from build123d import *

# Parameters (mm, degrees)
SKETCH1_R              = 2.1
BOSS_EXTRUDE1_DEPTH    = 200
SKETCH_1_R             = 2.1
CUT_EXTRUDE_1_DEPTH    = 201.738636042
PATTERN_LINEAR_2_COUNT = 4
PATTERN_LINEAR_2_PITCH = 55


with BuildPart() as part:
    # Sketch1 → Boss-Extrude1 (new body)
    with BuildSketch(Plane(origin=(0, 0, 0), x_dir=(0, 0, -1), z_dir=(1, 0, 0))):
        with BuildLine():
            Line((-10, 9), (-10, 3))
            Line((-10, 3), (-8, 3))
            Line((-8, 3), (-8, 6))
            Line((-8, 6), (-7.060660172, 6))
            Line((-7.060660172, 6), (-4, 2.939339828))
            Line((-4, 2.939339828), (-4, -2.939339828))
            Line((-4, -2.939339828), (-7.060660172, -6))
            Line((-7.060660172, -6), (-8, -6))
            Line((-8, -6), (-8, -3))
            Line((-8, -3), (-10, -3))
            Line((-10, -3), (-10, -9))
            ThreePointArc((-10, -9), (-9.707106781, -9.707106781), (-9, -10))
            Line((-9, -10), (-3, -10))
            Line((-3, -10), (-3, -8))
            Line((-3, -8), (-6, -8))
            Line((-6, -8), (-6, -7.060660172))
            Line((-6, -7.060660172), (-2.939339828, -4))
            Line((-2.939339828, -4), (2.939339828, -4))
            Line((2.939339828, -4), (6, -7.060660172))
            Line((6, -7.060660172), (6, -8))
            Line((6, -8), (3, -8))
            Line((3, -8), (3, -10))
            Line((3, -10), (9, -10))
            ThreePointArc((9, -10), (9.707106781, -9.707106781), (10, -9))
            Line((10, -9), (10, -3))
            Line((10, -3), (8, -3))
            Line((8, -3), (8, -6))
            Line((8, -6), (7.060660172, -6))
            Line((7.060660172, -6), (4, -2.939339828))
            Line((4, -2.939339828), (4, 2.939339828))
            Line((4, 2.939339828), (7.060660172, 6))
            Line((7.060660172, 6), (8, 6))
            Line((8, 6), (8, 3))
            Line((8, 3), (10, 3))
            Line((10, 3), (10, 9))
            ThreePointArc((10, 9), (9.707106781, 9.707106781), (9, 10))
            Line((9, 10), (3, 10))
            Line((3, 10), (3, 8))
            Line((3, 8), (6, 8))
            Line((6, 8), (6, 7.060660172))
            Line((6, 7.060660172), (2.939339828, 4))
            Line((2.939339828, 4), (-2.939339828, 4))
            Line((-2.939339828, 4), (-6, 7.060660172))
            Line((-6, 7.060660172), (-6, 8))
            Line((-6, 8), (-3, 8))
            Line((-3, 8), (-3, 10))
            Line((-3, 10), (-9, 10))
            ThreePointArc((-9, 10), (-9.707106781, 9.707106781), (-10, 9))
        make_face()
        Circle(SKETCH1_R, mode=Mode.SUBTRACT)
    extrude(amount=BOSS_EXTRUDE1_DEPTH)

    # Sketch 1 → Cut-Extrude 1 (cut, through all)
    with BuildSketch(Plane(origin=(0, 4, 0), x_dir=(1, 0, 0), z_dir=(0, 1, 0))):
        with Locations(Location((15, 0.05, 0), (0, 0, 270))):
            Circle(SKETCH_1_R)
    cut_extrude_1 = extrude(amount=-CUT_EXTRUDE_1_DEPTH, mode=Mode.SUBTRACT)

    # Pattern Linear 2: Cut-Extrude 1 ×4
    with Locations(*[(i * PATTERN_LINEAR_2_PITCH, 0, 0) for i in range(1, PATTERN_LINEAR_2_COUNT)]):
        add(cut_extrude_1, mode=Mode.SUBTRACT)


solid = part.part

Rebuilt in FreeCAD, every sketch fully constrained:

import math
import FreeCAD as App
import Part
import Sketcher

V = App.Vector
Q = App.Units.Quantity

doc = App.newDocument("Part")
body = doc.addObject("PartDesign::Body", "Body")

sketch1 = doc.addObject("Sketcher::SketchObject", "Sketch")
body.addObject(sketch1)
sketch1.AttachmentSupport = (doc.YZ_Plane, [""])
sketch1.MapMode = "FlatFace"
sketch1.addGeometry(Part.LineSegment(V(9, 10, 0), V(3, 10, 0)), False)
sketch1.addGeometry(Part.LineSegment(V(3, 10, 0), V(3, 8, 0)), False)
sketch1.addGeometry(Part.LineSegment(V(3, 8, 0), V(6, 8, 0)), False)
sketch1.addGeometry(Part.LineSegment(V(6, 8, 0), V(6, 7.1, 0)), False)
sketch1.addGeometry(Part.LineSegment(V(6, 7.1, 0), V(2.9, 4, 0)), False)
sketch1.addGeometry(Part.LineSegment(V(2.9, 4, 0), V(-2.9, 4, 0)), False)
sketch1.addGeometry(Part.LineSegment(V(-2.9, 4, 0), V(-6, 7.1, 0)), False)
sketch1.addGeometry(Part.LineSegment(V(-6, 7.1, 0), V(-6, 8, 0)), False)
sketch1.addGeometry(Part.LineSegment(V(-6, 8, 0), V(-3, 8, 0)), False)
sketch1.addGeometry(Part.LineSegment(V(-3, 8, 0), V(-3, 10, 0)), False)
sketch1.addGeometry(Part.LineSegment(V(-3, 10, 0), V(-9, 10, 0)), False)
sketch1.addGeometry(Part.ArcOfCircle(Part.Circle(V(-9, 9, 0), V(0, 0, 1), 1), math.radians(90), math.radians(180)), False)
sketch1.addGeometry(Part.LineSegment(V(-10, 9, 0), V(-10, 3, 0)), False)
sketch1.addGeometry(Part.LineSegment(V(-10, 3, 0), V(-8, 3, 0)), False)
sketch1.addGeometry(Part.LineSegment(V(-8, 3, 0), V(-8, 6, 0)), False)
sketch1.addGeometry(Part.LineSegment(V(-8, 6, 0), V(-7.1, 6, 0)), False)
sketch1.addGeometry(Part.LineSegment(V(-7.1, 6, 0), V(-4, 2.9, 0)), False)
sketch1.addGeometry(Part.LineSegment(V(-4, 2.9, 0), V(-4, -2.9, 0)), False)
sketch1.addGeometry(Part.LineSegment(V(-4, -2.9, 0), V(-7.1, -6, 0)), False)
sketch1.addGeometry(Part.LineSegment(V(-7.1, -6, 0), V(-8, -6, 0)), False)
sketch1.addGeometry(Part.LineSegment(V(-8, -6, 0), V(-8, -3, 0)), False)
sketch1.addGeometry(Part.LineSegment(V(-8, -3, 0), V(-10, -3, 0)), False)
sketch1.addGeometry(Part.LineSegment(V(-10, -3, 0), V(-10, -9, 0)), False)
sketch1.addGeometry(Part.ArcOfCircle(Part.Circle(V(-9, -9, 0), V(0, 0, 1), 1), math.radians(-180), math.radians(-90)), False)
sketch1.addGeometry(Part.LineSegment(V(-9, -10, 0), V(-3, -10, 0)), False)
sketch1.addGeometry(Part.LineSegment(V(-3, -10, 0), V(-3, -8, 0)), False)
sketch1.addGeometry(Part.LineSegment(V(-3, -8, 0), V(-6, -8, 0)), False)
sketch1.addGeometry(Part.LineSegment(V(-6, -8, 0), V(-6, -7.1, 0)), False)
sketch1.addGeometry(Part.LineSegment(V(-6, -7.1, 0), V(-2.9, -4, 0)), False)
sketch1.addGeometry(Part.LineSegment(V(-2.9, -4, 0), V(2.9, -4, 0)), False)
sketch1.addGeometry(Part.LineSegment(V(2.9, -4, 0), V(6, -7.1, 0)), False)
sketch1.addGeometry(Part.LineSegment(V(6, -7.1, 0), V(6, -8, 0)), False)
sketch1.addGeometry(Part.LineSegment(V(6, -8, 0), V(3, -8, 0)), False)
sketch1.addGeometry(Part.LineSegment(V(3, -8, 0), V(3, -10, 0)), False)
sketch1.addGeometry(Part.LineSegment(V(3, -10, 0), V(9, -10, 0)), False)
sketch1.addGeometry(Part.ArcOfCircle(Part.Circle(V(9, -9, 0), V(0, 0, 1), 1), math.radians(-90), math.radians(0)), False)
sketch1.addGeometry(Part.LineSegment(V(10, -9, 0), V(10, -3, 0)), False)
sketch1.addGeometry(Part.LineSegment(V(10, -3, 0), V(8, -3, 0)), False)
sketch1.addGeometry(Part.LineSegment(V(8, -3, 0), V(8, -6, 0)), False)
sketch1.addGeometry(Part.LineSegment(V(8, -6, 0), V(7.1, -6, 0)), False)
sketch1.addGeometry(Part.LineSegment(V(7.1, -6, 0), V(4, -2.9, 0)), False)
sketch1.addGeometry(Part.LineSegment(V(4, -2.9, 0), V(4, 2.9, 0)), False)
sketch1.addGeometry(Part.LineSegment(V(4, 2.9, 0), V(7.1, 6, 0)), False)
sketch1.addGeometry(Part.LineSegment(V(7.1, 6, 0), V(8, 6, 0)), False)
sketch1.addGeometry(Part.LineSegment(V(8, 6, 0), V(8, 3, 0)), False)
sketch1.addGeometry(Part.LineSegment(V(8, 3, 0), V(10, 3, 0)), False)
sketch1.addGeometry(Part.LineSegment(V(10, 3, 0), V(10, 9, 0)), False)
sketch1.addGeometry(Part.ArcOfCircle(Part.Circle(V(9, 9, 0), V(0, 0, 1), 1), math.radians(0), math.radians(90)), False)
sketch1.addGeometry(Part.Circle(V(0, 0, 0), V(0, 0, 1), 2.1), False)
sketch1.addConstraint(Sketcher.Constraint("Coincident", 0, 2, 1, 1))
sketch1.addConstraint(Sketcher.Constraint("Coincident", 1, 2, 2, 1))
sketch1.addConstraint(Sketcher.Constraint("Coincident", 2, 2, 3, 1))
sketch1.addConstraint(Sketcher.Constraint("Coincident", 3, 2, 4, 1))
sketch1.addConstraint(Sketcher.Constraint("Coincident", 4, 2, 5, 1))
sketch1.addConstraint(Sketcher.Constraint("Coincident", 5, 2, 6, 1))
sketch1.addConstraint(Sketcher.Constraint("Coincident", 6, 2, 7, 1))
sketch1.addConstraint(Sketcher.Constraint("Coincident", 7, 2, 8, 1))
sketch1.addConstraint(Sketcher.Constraint("Coincident", 8, 2, 9, 1))
sketch1.addConstraint(Sketcher.Constraint("Coincident", 9, 2, 10, 1))
sketch1.addConstraint(Sketcher.Constraint("Tangent", 10, 2, 11, 1))
sketch1.addConstraint(Sketcher.Constraint("Tangent", 11, 2, 12, 1))
sketch1.addConstraint(Sketcher.Constraint("Coincident", 12, 2, 13, 1))
sketch1.addConstraint(Sketcher.Constraint("Coincident", 13, 2, 14, 1))
sketch1.addConstraint(Sketcher.Constraint("Coincident", 14, 2, 15, 1))
sketch1.addConstraint(Sketcher.Constraint("Coincident", 15, 2, 16, 1))
sketch1.addConstraint(Sketcher.Constraint("Coincident", 16, 2, 17, 1))
sketch1.addConstraint(Sketcher.Constraint("Coincident", 17, 2, 18, 1))
sketch1.addConstraint(Sketcher.Constraint("Coincident", 18, 2, 19, 1))
sketch1.addConstraint(Sketcher.Constraint("Coincident", 19, 2, 20, 1))
sketch1.addConstraint(Sketcher.Constraint("Coincident", 20, 2, 21, 1))
sketch1.addConstraint(Sketcher.Constraint("Coincident", 21, 2, 22, 1))
sketch1.addConstraint(Sketcher.Constraint("Tangent", 22, 2, 23, 1))
sketch1.addConstraint(Sketcher.Constraint("Tangent", 23, 2, 24, 1))
sketch1.addConstraint(Sketcher.Constraint("Coincident", 24, 2, 25, 1))
sketch1.addConstraint(Sketcher.Constraint("Coincident", 25, 2, 26, 1))
sketch1.addConstraint(Sketcher.Constraint("Coincident", 26, 2, 27, 1))
sketch1.addConstraint(Sketcher.Constraint("Coincident", 27, 2, 28, 1))
sketch1.addConstraint(Sketcher.Constraint("Coincident", 28, 2, 29, 1))
sketch1.addConstraint(Sketcher.Constraint("Coincident", 29, 2, 30, 1))
sketch1.addConstraint(Sketcher.Constraint("Coincident", 30, 2, 31, 1))
sketch1.addConstraint(Sketcher.Constraint("Coincident", 31, 2, 32, 1))
sketch1.addConstraint(Sketcher.Constraint("Coincident", 32, 2, 33, 1))
sketch1.addConstraint(Sketcher.Constraint("Coincident", 33, 2, 34, 1))
sketch1.addConstraint(Sketcher.Constraint("Tangent", 34, 2, 35, 1))
sketch1.addConstraint(Sketcher.Constraint("Tangent", 35, 2, 36, 1))
sketch1.addConstraint(Sketcher.Constraint("Coincident", 36, 2, 37, 1))
sketch1.addConstraint(Sketcher.Constraint("Coincident", 37, 2, 38, 1))
sketch1.addConstraint(Sketcher.Constraint("Coincident", 38, 2, 39, 1))
sketch1.addConstraint(Sketcher.Constraint("Coincident", 39, 2, 40, 1))
sketch1.addConstraint(Sketcher.Constraint("Coincident", 40, 2, 41, 1))
sketch1.addConstraint(Sketcher.Constraint("Coincident", 41, 2, 42, 1))
sketch1.addConstraint(Sketcher.Constraint("Coincident", 42, 2, 43, 1))
sketch1.addConstraint(Sketcher.Constraint("Coincident", 43, 2, 44, 1))
sketch1.addConstraint(Sketcher.Constraint("Coincident", 44, 2, 45, 1))
sketch1.addConstraint(Sketcher.Constraint("Coincident", 45, 2, 46, 1))
sketch1.addConstraint(Sketcher.Constraint("Tangent", 46, 2, 47, 1))
sketch1.addConstraint(Sketcher.Constraint("Tangent", 47, 2, 0, 1))
sketch1.addConstraint(Sketcher.Constraint("Horizontal", 0))
sketch1.addConstraint(Sketcher.Constraint("Vertical", 1))
sketch1.addConstraint(Sketcher.Constraint("Horizontal", 2))
sketch1.addConstraint(Sketcher.Constraint("Vertical", 3))
sketch1.addConstraint(Sketcher.Constraint("Horizontal", 5))
sketch1.addConstraint(Sketcher.Constraint("Vertical", 7))
sketch1.addConstraint(Sketcher.Constraint("Horizontal", 8))
sketch1.addConstraint(Sketcher.Constraint("Vertical", 9))
sketch1.addConstraint(Sketcher.Constraint("Horizontal", 10))
sketch1.addConstraint(Sketcher.Constraint("Vertical", 12))
sketch1.addConstraint(Sketcher.Constraint("Horizontal", 13))
sketch1.addConstraint(Sketcher.Constraint("Vertical", 14))
sketch1.addConstraint(Sketcher.Constraint("Horizontal", 15))
sketch1.addConstraint(Sketcher.Constraint("Vertical", 17))
sketch1.addConstraint(Sketcher.Constraint("Horizontal", 19))
sketch1.addConstraint(Sketcher.Constraint("Vertical", 20))
sketch1.addConstraint(Sketcher.Constraint("Horizontal", 21))
sketch1.addConstraint(Sketcher.Constraint("Vertical", 22))
sketch1.addConstraint(Sketcher.Constraint("Horizontal", 24))
sketch1.addConstraint(Sketcher.Constraint("Vertical", 25))
sketch1.addConstraint(Sketcher.Constraint("Horizontal", 26))
sketch1.addConstraint(Sketcher.Constraint("Vertical", 27))
sketch1.addConstraint(Sketcher.Constraint("Horizontal", 29))
sketch1.addConstraint(Sketcher.Constraint("Vertical", 31))
sketch1.addConstraint(Sketcher.Constraint("Horizontal", 32))
sketch1.addConstraint(Sketcher.Constraint("Vertical", 33))
sketch1.addConstraint(Sketcher.Constraint("Horizontal", 34))
sketch1.addConstraint(Sketcher.Constraint("Vertical", 36))
sketch1.addConstraint(Sketcher.Constraint("Horizontal", 37))
sketch1.addConstraint(Sketcher.Constraint("Vertical", 38))
sketch1.addConstraint(Sketcher.Constraint("Horizontal", 39))
sketch1.addConstraint(Sketcher.Constraint("Vertical", 41))
sketch1.addConstraint(Sketcher.Constraint("Horizontal", 43))
sketch1.addConstraint(Sketcher.Constraint("Vertical", 44))
sketch1.addConstraint(Sketcher.Constraint("Horizontal", 45))
sketch1.addConstraint(Sketcher.Constraint("Vertical", 46))
sketch1.addConstraint(Sketcher.Constraint("Coincident", 48, 3, -1, 1))
sketch1.addConstraint(Sketcher.Constraint("Equal", 11, 23))
sketch1.addConstraint(Sketcher.Constraint("Equal", 23, 35))
sketch1.addConstraint(Sketcher.Constraint("Equal", 35, 47))
sketch1.addConstraint(Sketcher.Constraint("Symmetric", 11, 3, 35, 3, -1, 1))
sketch1.addConstraint(Sketcher.Constraint("Symmetric", 23, 3, 47, 3, -1, 1))
sketch1.addConstraint(Sketcher.Constraint("Symmetric", 1, 2, 25, 2, -1, 1))
sketch1.addConstraint(Sketcher.Constraint("Symmetric", 3, 2, 27, 2, -1, 1))
sketch1.addConstraint(Sketcher.Constraint("Symmetric", 4, 2, 28, 2, -1, 1))
sketch1.addConstraint(Sketcher.Constraint("Symmetric", 6, 2, 30, 2, -1, 1))
sketch1.addConstraint(Sketcher.Constraint("Symmetric", 8, 2, 32, 2, -1, 1))
sketch1.addConstraint(Sketcher.Constraint("Symmetric", 13, 2, 37, 2, -1, 1))
sketch1.addConstraint(Sketcher.Constraint("Symmetric", 15, 2, 39, 2, -1, 1))
sketch1.addConstraint(Sketcher.Constraint("Symmetric", 16, 2, 40, 2, -1, 1))
sketch1.addConstraint(Sketcher.Constraint("Symmetric", 18, 2, 42, 2, -1, 1))
sketch1.addConstraint(Sketcher.Constraint("Symmetric", 20, 2, 44, 2, -1, 1))
sketch1.addConstraint(Sketcher.Constraint("Symmetric", 23, 3, 35, 3, -2))
sketch1.addConstraint(Sketcher.Constraint("Symmetric", 3, 2, 6, 2, -2))
sketch1.addConstraint(Sketcher.Constraint("Symmetric", 1, 2, 8, 2, -2))
sketch1.addConstraint(Sketcher.Constraint("Symmetric", 20, 2, 37, 2, -2))
sketch1.addConstraint(Sketcher.Constraint("Symmetric", 18, 2, 39, 2, -2))
sketch1.addConstraint(Sketcher.Constraint("Perpendicular", 4, 6))
sketch1.addConstraint(Sketcher.Constraint("Parallel", 6, 16))
sketch1.addConstraint(Sketcher.Constraint("Perpendicular", 16, 18))
sketch1.addConstraint(Sketcher.Constraint("Perpendicular", 28, 30))
sketch1.addConstraint(Sketcher.Constraint("Perpendicular", 40, 42))
sketch1.addConstraint(Sketcher.Constraint("Horizontal", 17, 2, 40, 2))
sketch1.addConstraint(Sketcher.Constraint("Equal", 45, 1))
sketch1.addConstraint(Sketcher.Constraint("Equal", 43, 3))
sketch1.addConstraint(Sketcher.Constraint("Equal", 34, 12))
sketch1.addConstraint(Sketcher.Constraint("Equal", 32, 14))
sketch1.addConstraint(Sketcher.Constraint("Equal", 29, 17))
sketch1.addConstraint(Sketcher.Constraint("Equal", 6, 16))
sketch1.addConstraint(Sketcher.Constraint("Radius", 11, Q("1 mm")))
sketch1.addConstraint(Sketcher.Constraint("Diameter", 48, Q("4.2 mm")))
sketch1.addConstraint(Sketcher.Constraint("DistanceX", 0, 2, 0, 1, Q("6 mm")))
sketch1.addConstraint(Sketcher.Constraint("DistanceX", 2, 1, 2, 2, Q("3 mm")))
sketch1.addConstraint(Sketcher.Constraint("DistanceX", 13, 1, 13, 2, Q("2 mm")))
sketch1.addConstraint(Sketcher.Constraint("DistanceX", 11, 3, -1, 1, Q("9 mm")))
sketch1.addConstraint(Sketcher.Constraint("DistanceY", -1, 1, 4, 2, Q("4 mm")))
sketch1.addConstraint(Sketcher.Constraint("DistanceX", 5, 2, 5, 1, Q("5.87868 mm")))
pad1 = doc.addObject("PartDesign::Pad", "Pad")
body.addObject(pad1)
pad1.Profile = sketch1
pad1.Length = 200

sketch2 = doc.addObject("Sketcher::SketchObject", "Sketch001")
body.addObject(sketch2)
sketch2.AttachmentSupport = (doc.XZ_Plane, [""])
sketch2.MapMode = "FlatFace"
sketch2.AttachmentOffset = App.Placement(V(0, 0, -4), App.Rotation())
sketch2.addGeometry(Part.Circle(V(15, -0.1, 0), V(0, 0, 1), 2.1), False)
sketch2.addConstraint(Sketcher.Constraint("Diameter", 0, Q("4.2 mm")))
sketch2.addConstraint(Sketcher.Constraint("DistanceX", -1, 1, 0, 3, Q("15 mm")))
sketch2.addConstraint(Sketcher.Constraint("DistanceY", 0, 3, -1, 1, Q("0.05 mm")))
pocket1 = doc.addObject("PartDesign::Pocket", "Pocket")
body.addObject(pocket1)
pocket1.Profile = sketch2
pocket1.Type = "ThroughAll"
pocket1.Reversed = True
doc.recompute()

linearpattern = doc.addObject("PartDesign::LinearPattern", "LinearPattern")
body.addObject(linearpattern)
linearpattern.Originals = [pocket1]
linearpattern.Direction = (doc.X_Axis, [""])
linearpattern.Mode = "offset"
linearpattern.Offset = 55
linearpattern.Occurrences = 4
body.Tip = linearpattern

doc.recompute()
